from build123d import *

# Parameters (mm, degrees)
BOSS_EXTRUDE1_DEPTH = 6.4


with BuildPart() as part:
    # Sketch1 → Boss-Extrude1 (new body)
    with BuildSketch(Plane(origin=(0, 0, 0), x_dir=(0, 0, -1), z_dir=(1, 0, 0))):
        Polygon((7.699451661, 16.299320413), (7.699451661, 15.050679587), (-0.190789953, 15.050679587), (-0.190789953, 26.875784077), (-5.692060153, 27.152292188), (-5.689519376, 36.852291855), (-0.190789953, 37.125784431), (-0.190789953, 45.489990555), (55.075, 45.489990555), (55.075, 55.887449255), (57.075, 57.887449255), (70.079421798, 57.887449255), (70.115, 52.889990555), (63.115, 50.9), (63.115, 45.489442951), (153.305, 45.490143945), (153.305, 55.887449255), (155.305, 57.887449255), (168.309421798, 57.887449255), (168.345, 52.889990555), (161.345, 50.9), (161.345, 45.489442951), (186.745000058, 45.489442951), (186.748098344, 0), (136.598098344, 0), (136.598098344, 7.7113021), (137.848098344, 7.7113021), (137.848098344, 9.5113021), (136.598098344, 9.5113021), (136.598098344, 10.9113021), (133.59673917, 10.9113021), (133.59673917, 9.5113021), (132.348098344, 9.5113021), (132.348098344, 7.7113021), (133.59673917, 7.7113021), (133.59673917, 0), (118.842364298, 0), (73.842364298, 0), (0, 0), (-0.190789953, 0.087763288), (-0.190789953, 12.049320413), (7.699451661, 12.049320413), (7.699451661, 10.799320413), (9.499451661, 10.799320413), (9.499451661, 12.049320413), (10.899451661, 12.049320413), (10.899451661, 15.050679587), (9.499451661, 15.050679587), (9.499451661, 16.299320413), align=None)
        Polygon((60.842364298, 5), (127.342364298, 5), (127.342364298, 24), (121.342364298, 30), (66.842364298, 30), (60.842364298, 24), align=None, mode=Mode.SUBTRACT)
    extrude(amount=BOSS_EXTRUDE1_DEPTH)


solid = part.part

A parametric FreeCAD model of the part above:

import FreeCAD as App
import Part
import Sketcher

V = App.Vector
Q = App.Units.Quantity

doc = App.newDocument("Part")
params = doc.addObject("Spreadsheet::Sheet", "Params")
for row, (alias, value) in enumerate([
    ("sketch1_width", "19 mm"),
    ("sketch1_width2", "1.8 mm"),
    ("sketch1_width3", "1.4 mm"),
    ("sketch1_height", "25.4 mm"),
    ("sketch1_height2", "54.5 mm"),
    ("pad1_length", "6.4 mm"),
], start=1):
    params.set(f"A{row}", alias)
    params.set(f"B{row}", "=" + value)
    params.setAlias(f"B{row}", alias)

body = doc.addObject("PartDesign::Body", "Body")

# Sketch on YZ plane
sketch1 = body.newObject("Sketcher::SketchObject", "Sketch")
sketch1.AttachmentSupport = (doc.getObject("YZ_Plane"), [""])
sketch1.MapMode = "FlatFace"
sketch1.addGeometry(Part.LineSegment(V(15.05, -7.7, 0), V(16.3, -7.7, 0)), False)
sketch1.addGeometry(Part.LineSegment(V(16.3, -7.7, 0), V(16.3, -9.5, 0)), False)
sketch1.addGeometry(Part.LineSegment(V(16.3, -9.5, 0), V(15.05, -9.5, 0)), False)
sketch1.addGeometry(Part.LineSegment(V(15.05, -9.5, 0), V(15.05, -10.9, 0)), False)
sketch1.addGeometry(Part.LineSegment(V(15.05, -10.9, 0), V(12.05, -10.9, 0)), False)
sketch1.addGeometry(Part.LineSegment(V(12.05, -10.9, 0), V(12.05, -9.5, 0)), False)
sketch1.addGeometry(Part.LineSegment(V(12.05, -9.5, 0), V(10.8, -9.5, 0)), False)
sketch1.addGeometry(Part.LineSegment(V(10.8, -9.5, 0), V(10.8, -7.7, 0)), False)
sketch1.addGeometry(Part.LineSegment(V(10.8, -7.7, 0), V(12.05, -7.7, 0)), False)
sketch1.addGeometry(Part.LineSegment(V(12.05, -7.7, 0), V(12.05, 0.19, 0)), False)
sketch1.addGeometry(Part.LineSegment(V(12.05, 0.19, 0), V(0.09, 0.19, 0)), False)
sketch1.addGeometry(Part.LineSegment(V(0.09, 0.19, 0), V(0, 0, 0)), False)
sketch1.addGeometry(Part.LineSegment(V(0, 0, 0), V(0, -133.6, 0)), False)
sketch1.addGeometry(Part.LineSegment(V(0, -133.6, 0), V(7.71, -133.6, 0)), False)
sketch1.addGeometry(Part.LineSegment(V(7.71, -133.6, 0), V(7.71, -132.35, 0)), False)
sketch1.addGeometry(Part.LineSegment(V(7.71, -132.35, 0), V(9.51, -132.35, 0)), False)
sketch1.addGeometry(Part.LineSegment(V(9.51, -132.35, 0), V(9.51, -133.6, 0)), False)
sketch1.addGeometry(Part.LineSegment(V(9.51, -133.6, 0), V(10.91, -133.6, 0)), False)
sketch1.addGeometry(Part.LineSegment(V(10.91, -133.6, 0), V(10.91, -136.6, 0)), False)
sketch1.addGeometry(Part.LineSegment(V(10.91, -136.6, 0), V(9.51, -136.6, 0)), False)
sketch1.addGeometry(Part.LineSegment(V(9.51, -136.6, 0), V(9.51, -137.85, 0)), False)
sketch1.addGeometry(Part.LineSegment(V(9.51, -137.85, 0), V(7.71, -137.85, 0)), False)
sketch1.addGeometry(Part.LineSegment(V(7.71, -137.85, 0), V(7.71, -136.6, 0)), False)
sketch1.addGeometry(Part.LineSegment(V(7.71, -136.6, 0), V(0, -136.6, 0)), False)
sketch1.addGeometry(Part.LineSegment(V(0, -136.6, 0), V(0, -186.75, 0)), False)
sketch1.addGeometry(Part.LineSegment(V(0, -186.75, 0), V(45.49, -186.75, 0)), False)
sketch1.addGeometry(Part.LineSegment(V(45.49, -186.75, 0), V(45.49, -161.34, 0)), False)
sketch1.addGeometry(Part.LineSegment(V(45.49, -161.34, 0), V(50.9, -161.34, 0)), False)
sketch1.addGeometry(Part.LineSegment(V(50.9, -161.34, 0), V(52.89, -168.34, 0)), False)
sketch1.addGeometry(Part.LineSegment(V(52.89, -168.34, 0), V(57.89, -168.31, 0)), False)
sketch1.addGeometry(Part.LineSegment(V(57.89, -168.31, 0), V(57.89, -155.31, 0)), False)
sketch1.addGeometry(Part.LineSegment(V(57.89, -155.31, 0), V(55.89, -153.31, 0)), False)
sketch1.addGeometry(Part.LineSegment(V(55.89, -153.31, 0), V(45.49, -153.31, 0)), False)
sketch1.addGeometry(Part.LineSegment(V(45.49, -153.31, 0), V(45.49, -63.12, 0)), False)
sketch1.addGeometry(Part.LineSegment(V(45.49, -63.12, 0), V(50.9, -63.12, 0)), False)
sketch1.addGeometry(Part.LineSegment(V(50.9, -63.12, 0), V(52.89, -70.11, 0)), False)
sketch1.addGeometry(Part.LineSegment(V(52.89, -70.11, 0), V(57.89, -70.08, 0)), False)
sketch1.addGeometry(Part.LineSegment(V(57.89, -70.08, 0), V(57.89, -57.08, 0)), False)
sketch1.addGeometry(Part.LineSegment(V(57.89, -57.08, 0), V(55.89, -55.08, 0)), False)
sketch1.addGeometry(Part.LineSegment(V(55.89, -55.08, 0), V(45.49, -55.08, 0)), False)
sketch1.addGeometry(Part.LineSegment(V(45.49, -55.08, 0), V(45.49, 0.19, 0)), False)
sketch1.addGeometry(Part.LineSegment(V(45.49, 0.19, 0), V(37.13, 0.19, 0)), False)
sketch1.addGeometry(Part.LineSegment(V(37.13, 0.19, 0), V(36.85, 5.69, 0)), False)
sketch1.addGeometry(Part.LineSegment(V(36.85, 5.69, 0), V(27.15, 5.69, 0)), False)
sketch1.addGeometry(Part.LineSegment(V(27.15, 5.69, 0), V(26.88, 0.19, 0)), False)
sketch1.addGeometry(Part.LineSegment(V(26.88, 0.19, 0), V(15.05, 0.19, 0)), False)
sketch1.addGeometry(Part.LineSegment(V(15.05, 0.19, 0), V(15.05, -7.7, 0)), False)
sketch1.addGeometry(Part.LineSegment(V(5, -60.84, 0), V(24, -60.84, 0)), False)
sketch1.addGeometry(Part.LineSegment(V(24, -60.84, 0), V(30, -66.84, 0)), False)
sketch1.addGeometry(Part.LineSegment(V(30, -66.84, 0), V(30, -121.34, 0)), False)
sketch1.addGeometry(Part.LineSegment(V(30, -121.34, 0), V(24, -127.34, 0)), False)
sketch1.addGeometry(Part.LineSegment(V(24, -127.34, 0), V(5, -127.34, 0)), False)
sketch1.addGeometry(Part.LineSegment(V(5, -127.34, 0), V(5, -60.84, 0)), False)
sketch1.addConstraint(Sketcher.Constraint("Coincident", 0, 2, 1, 1))
sketch1.addConstraint(Sketcher.Constraint("Coincident", 1, 2, 2, 1))
sketch1.addConstraint(Sketcher.Constraint("Coincident", 2, 2, 3, 1))
sketch1.addConstraint(Sketcher.Constraint("Coincident", 3, 2, 4, 1))
sketch1.addConstraint(Sketcher.Constraint("Coincident", 4, 2, 5, 1))
sketch1.addConstraint(Sketcher.Constraint("Coincident", 5, 2, 6, 1))
sketch1.addConstraint(Sketcher.Constraint("Coincident", 6, 2, 7, 1))
sketch1.addConstraint(Sketcher.Constraint("Coincident", 7, 2, 8, 1))
sketch1.addConstraint(Sketcher.Constraint("Coincident", 8, 2, 9, 1))
sketch1.addConstraint(Sketcher.Constraint("Coincident", 9, 2, 10, 1))
sketch1.addConstraint(Sketcher.Constraint("Coincident", 10, 2, 11, 1))
sketch1.addConstraint(Sketcher.Constraint("Coincident", 11, 2, 12, 1))
sketch1.addConstraint(Sketcher.Constraint("Coincident", 12, 2, 13, 1))
sketch1.addConstraint(Sketcher.Constraint("Coincident", 13, 2, 14, 1))
sketch1.addConstraint(Sketcher.Constraint("Coincident", 14, 2, 15, 1))
sketch1.addConstraint(Sketcher.Constraint("Coincident", 15, 2, 16, 1))
sketch1.addConstraint(Sketcher.Constraint("Coincident", 16, 2, 17, 1))
sketch1.addConstraint(Sketcher.Constraint("Coincident", 17, 2, 18, 1))
sketch1.addConstraint(Sketcher.Constraint("Coincident", 18, 2, 19, 1))
sketch1.addConstraint(Sketcher.Constraint("Coincident", 19, 2, 20, 1))
sketch1.addConstraint(Sketcher.Constraint("Coincident", 20, 2, 21, 1))
sketch1.addConstraint(Sketcher.Constraint("Coincident", 21, 2, 22, 1))
sketch1.addConstraint(Sketcher.Constraint("Coincident", 22, 2, 23, 1))
sketch1.addConstraint(Sketcher.Constraint("Coincident", 23, 2, 24, 1))
sketch1.addConstraint(Sketcher.Constraint("Coincident", 24, 2, 25, 1))
sketch1.addConstraint(Sketcher.Constraint("Coincident", 25, 2, 26, 1))
sketch1.addConstraint(Sketcher.Constraint("Coincident", 26, 2, 27, 1))
sketch1.addConstraint(Sketcher.Constraint("Coincident", 27, 2, 28, 1))
sketch1.addConstraint(Sketcher.Constraint("Coincident", 28, 2, 29, 1))
sketch1.addConstraint(Sketcher.Constraint("Coincident", 29, 2, 30, 1))
sketch1.addConstraint(Sketcher.Constraint("Coincident", 30, 2, 31, 1))
sketch1.addConstraint(Sketcher.Constraint("Coincident", 31, 2, 32, 1))
sketch1.addConstraint(Sketcher.Constraint("Coincident", 32, 2, 33, 1))
sketch1.addConstraint(Sketcher.Constraint("Coincident", 33, 2, 34, 1))
sketch1.addConstraint(Sketcher.Constraint("Coincident", 34, 2, 35, 1))
sketch1.addConstraint(Sketcher.Constraint("Coincident", 35, 2, 36, 1))
sketch1.addConstraint(Sketcher.Constraint("Coincident", 36, 2, 37, 1))
sketch1.addConstraint(Sketcher.Constraint("Coincident", 37, 2, 38, 1))
sketch1.addConstraint(Sketcher.Constraint("Coincident", 38, 2, 39, 1))
sketch1.addConstraint(Sketcher.Constraint("Coincident", 39, 2, 40, 1))
sketch1.addConstraint(Sketcher.Constraint("Coincident", 40, 2, 41, 1))
sketch1.addConstraint(Sketcher.Constraint("Coincident", 41, 2, 42, 1))
sketch1.addConstraint(Sketcher.Constraint("Coincident", 42, 2, 43, 1))
sketch1.addConstraint(Sketcher.Constraint("Coincident", 43, 2, 44, 1))
sketch1.addConstraint(Sketcher.Constraint("Coincident", 44, 2, 45, 1))
sketch1.addConstraint(Sketcher.Constraint("Coincident", 45, 2, 46, 1))
sketch1.addConstraint(Sketcher.Constraint("Coincident", 46, 2, 0, 1))
sketch1.addConstraint(Sketcher.Constraint("Coincident", 47, 2, 48, 1))
sketch1.addConstraint(Sketcher.Constraint("Coincident", 48, 2, 49, 1))
sketch1.addConstraint(Sketcher.Constraint("Coincident", 49, 2, 50, 1))
sketch1.addConstraint(Sketcher.Constraint("Coincident", 50, 2, 51, 1))
sketch1.addConstraint(Sketcher.Constraint("Coincident", 51, 2, 52, 1))
sketch1.addConstraint(Sketcher.Constraint("Coincident", 52, 2, 47, 1))
sketch1.addConstraint(Sketcher.Constraint("Horizontal", 0))
sketch1.addConstraint(Sketcher.Constraint("Vertical", 1))
sketch1.addConstraint(Sketcher.Constraint("Horizontal", 2))
sketch1.addConstraint(Sketcher.Constraint("Vertical", 3))
sketch1.addConstraint(Sketcher.Constraint("Horizontal", 4))
sketch1.addConstraint(Sketcher.Constraint("Vertical", 5))
sketch1.addConstraint(Sketcher.Constraint("Horizontal", 6))
sketch1.addConstraint(Sketcher.Constraint("Vertical", 7))
sketch1.addConstraint(Sketcher.Constraint("Horizontal", 8))
sketch1.addConstraint(Sketcher.Constraint("Vertical", 9))
sketch1.addConstraint(Sketcher.Constraint("Horizontal", 10))
sketch1.addConstraint(Sketcher.Constraint("Vertical", 12))
sketch1.addConstraint(Sketcher.Constraint("Horizontal", 13))
sketch1.addConstraint(Sketcher.Constraint("Vertical", 14))
sketch1.addConstraint(Sketcher.Constraint("Horizontal", 15))
sketch1.addConstraint(Sketcher.Constraint("Vertical", 16))
sketch1.addConstraint(Sketcher.Constraint("Horizontal", 17))
sketch1.addConstraint(Sketcher.Constraint("Vertical", 18))
sketch1.addConstraint(Sketcher.Constraint("Horizontal", 19))
sketch1.addConstraint(Sketcher.Constraint("Vertical", 20))
sketch1.addConstraint(Sketcher.Constraint("Horizontal", 21))
sketch1.addConstraint(Sketcher.Constraint("Vertical", 22))
sketch1.addConstraint(Sketcher.Constraint("Horizontal", 23))
sketch1.addConstraint(Sketcher.Constraint("Vertical", 24))
sketch1.addConstraint(Sketcher.Constraint("Vertical", 26))
sketch1.addConstraint(Sketcher.Constraint("Horizontal", 27))
sketch1.addConstraint(Sketcher.Constraint("Vertical", 30))
sketch1.addConstraint(Sketcher.Constraint("Horizontal", 32))
sketch1.addConstraint(Sketcher.Constraint("Horizontal", 34))
sketch1.addConstraint(Sketcher.Constraint("Vertical", 37))
sketch1.addConstraint(Sketcher.Constraint("Horizontal", 39))
sketch1.addConstraint(Sketcher.Constraint("Vertical", 40))
sketch1.addConstraint(Sketcher.Constraint("Horizontal", 41))
sketch1.addConstraint(Sketcher.Constraint("Horizontal", 45))
sketch1.addConstraint(Sketcher.Constraint("Vertical", 46))
sketch1.addConstraint(Sketcher.Constraint("Horizontal", 47))
sketch1.addConstraint(Sketcher.Constraint("Vertical", 49))
sketch1.addConstraint(Sketcher.Constraint("Horizontal", 51))
sketch1.addConstraint(Sketcher.Constraint("Vertical", 52))
sketch1.addConstraint(Sketcher.Constraint("Coincident", 11, 2, -1, 1))
sketch1.addConstraint(Sketcher.Constraint("PointOnObject", 23, 2, -2))
sketch1.addConstraint(Sketcher.Constraint("Parallel", 28, 35))
sketch1.addConstraint(Sketcher.Constraint("Parallel", 29, 36))
sketch1.addConstraint(Sketcher.Constraint("Parallel", 31, 38))
sketch1.addConstraint(Sketcher.Constraint("Parallel", 38, 48))
sketch1.addConstraint(Sketcher.Constraint("Perpendicular", 48, 50))
sketch1.addConstraint(Sketcher.Constraint("Horizontal", 2, 2, 5, 2))
sketch1.addConstraint(Sketcher.Constraint("Horizontal", 0, 2, 7, 2))
sketch1.addConstraint(Sketcher.Constraint("Horizontal", 13, 2, 16, 2))
sketch1.addConstraint(Sketcher.Constraint("Horizontal", 19, 2, 22, 2))
sketch1.addConstraint(Sketcher.Constraint("Horizontal", 10, 2, 40, 2))
sketch1.addConstraint(Sketcher.Constraint("Horizontal", 41, 2, 44, 2))
sketch1.addConstraint(Sketcher.Constraint("Vertical", 5, 2, 8, 2))
sketch1.addConstraint(Sketcher.Constraint("Vertical", 16, 2, 19, 2))
sketch1.addConstraint(Sketcher.Constraint("Vertical", 14, 2, 21, 2))
sketch1.addConstraint(Sketcher.Constraint("Vertical", 26, 2, 33, 2))
sketch1.addConstraint(Sketcher.Constraint("Vertical", 27, 2, 34, 2))
sketch1.addConstraint(Sketcher.Constraint("Vertical", 28, 2, 35, 2))
sketch1.addConstraint(Sketcher.Constraint("Vertical", 30, 2, 36, 2))
sketch1.addConstraint(Sketcher.Constraint("Vertical", 31, 2, 38, 2))
sketch1.addConstraint(Sketcher.Constraint("Vertical", 3, 2, 45, 2))
sketch1.addConstraint(Sketcher.Constraint("Vertical", 47, 2, 50, 2))
sketch1.addConstraint(Sketcher.Constraint("Equal", 21, 1))
sketch1.addConstraint(Sketcher.Constraint("Equal", 19, 3))
sketch1.addConstraint(Sketcher.Constraint("Equal", 2, 14))
sketch1.addConstraint(Sketcher.Constraint("Equal", 4, 18))
sketch1.addConstraint(Sketcher.Constraint("Equal", 8, 20))
sketch1.addConstraint(Sketcher.Constraint("Equal", 30, 37))
sketch1.addConstraint(Sketcher.Constraint("Equal", 48, 50))
sketch1.addConstraint(Sketcher.Constraint("DistanceX", 47, 1, 47, 2, Q("19 mm")))
sketch1.addConstraint(Sketcher.Constraint("DistanceX", 15, 1, 15, 2, Q("1.8 mm")))
sketch1.addConstraint(Sketcher.Constraint("DistanceX", 17, 1, 17, 2, Q("1.4 mm")))
sketch1.addConstraint(Sketcher.Constraint("DistanceY", 26, 1, 26, 2, Q("25.4 mm")))
sketch1.addConstraint(Sketcher.Constraint("DistanceY", 49, 2, 49, 1, Q("54.5 mm")))
sketch1.addConstraint(Sketcher.Constraint("DistanceY", 52, 1, 52, 2, Q("66.5 mm")))
sketch1.addConstraint(Sketcher.Constraint("DistanceX", -1, 1, 47, 2, Q("24 mm")))
sketch1.addConstraint(Sketcher.Constraint("DistanceY", 28, 2, 27, 2, Q("7 mm")))
sketch1.addConstraint(Sketcher.Constraint("DistanceX", 31, 2, 30, 2, Q("2 mm")))
sketch1.addConstraint(Sketcher.Constraint("Distance", 43, Q("9.7 mm")))
sketch1.addConstraint(Sketcher.Constraint("DistanceX", 6, 2, 6, 1, Q("1.25 mm")))
sketch1.addConstraint(Sketcher.Constraint("DistanceY", 24, 2, 24, 1, Q("50.15 mm")))
sketch1.addConstraint(Sketcher.Constraint("DistanceX", -1, 1, 27, 2, Q("50.9 mm")))
sketch1.addConstraint(Sketcher.Constraint("DistanceX", 6, 2, 1, 2, Q("5.5 mm")))
sketch1.addConstraint(Sketcher.Constraint("DistanceX", 39, 2, 35, 2, Q("7.4 mm")))
sketch1.addConstraint(Sketcher.Constraint("Distance", 33, Q("90.19 mm")))
sketch1.addConstraint(Sketcher.Constraint("DistanceY", 27, 2, 30, 2, Q("6.04 mm")))
sketch1.addConstraint(Sketcher.Constraint("DistanceX", 44, 2, 41, 2, Q("10.25 mm")))
sketch1.addConstraint(Sketcher.Constraint("DistanceY", 25, 2, -1, 1, Q("186.745 mm")))
sketch1.addConstraint(Sketcher.Constraint("DistanceX", 0, 1, 0, 2, Q("1.248641 mm")))
sketch1.addConstraint(Sketcher.Constraint("DistanceX", 39, 2, 39, 1, Q("10.397459 mm")))
sketch1.addConstraint(Sketcher.Constraint("DistanceY", 9, 1, 9, 2, Q("7.890242 mm")))
sketch1.addConstraint(Sketcher.Constraint("DistanceY", 12, 2, 12, 1, Q("133.596739 mm")))
sketch1.addConstraint(Sketcher.Constraint("DistanceY", 30, 1, 30, 2, Q("13.004422 mm")))
sketch1.addConstraint(Sketcher.Constraint("DistanceY", 40, 1, 40, 2, Q("55.26579 mm")))
sketch1.addConstraint(Sketcher.Constraint("DistanceX", 26, 2, 32, 2, Q("0.000701 mm")))
sketch1.addConstraint(Sketcher.Constraint("DistanceX", 42, 2, 40, 2, Q("8.637699 mm")))
sketch1.addConstraint(Sketcher.Constraint("DistanceX", 10, 2, 10, 1, Q("11.961557 mm")))
sketch1.addConstraint(Sketcher.Constraint("DistanceX", 13, 1, 13, 2, Q("7.711302 mm")))
sketch1.addConstraint(Sketcher.Constraint("DistanceX", 27, 1, 27, 2, Q("5.410557 mm")))
sketch1.addConstraint(Sketcher.Constraint("DistanceX", 32, 2, 32, 1, Q("10.397305 mm")))
sketch1.addConstraint(Sketcher.Constraint("DistanceX", 41, 2, 41, 1, Q("8.364206 mm")))
sketch1.addConstraint(Sketcher.Constraint("DistanceX", 45, 2, 45, 1, Q("11.825104 mm")))
sketch1.addConstraint(Sketcher.Constraint("DistanceY", -1, 1, 42, 2, Q("5.689519 mm")))
sketch1.addConstraint(Sketcher.Constraint("DistanceY", -1, 1, 43, 2, Q("5.69206 mm")))
sketch1.addConstraint(Sketcher.Constraint("DistanceY", 47, 2, -1, 1, Q("60.842364 mm")))
sketch1.setExpression("Constraints[122]", "Params.sketch1_width")
sketch1.setExpression("Constraints[123]", "Params.sketch1_width2")
sketch1.setExpression("Constraints[124]", "Params.sketch1_width3")
sketch1.setExpression("Constraints[125]", "Params.sketch1_height")
sketch1.setExpression("Constraints[126]", "Params.sketch1_height2")
pad1 = body.newObject("PartDesign::Pad", "Pad")
pad1.Profile = sketch1
pad1.setExpression("Length", "Params.pad1_length")

doc.recompute()
